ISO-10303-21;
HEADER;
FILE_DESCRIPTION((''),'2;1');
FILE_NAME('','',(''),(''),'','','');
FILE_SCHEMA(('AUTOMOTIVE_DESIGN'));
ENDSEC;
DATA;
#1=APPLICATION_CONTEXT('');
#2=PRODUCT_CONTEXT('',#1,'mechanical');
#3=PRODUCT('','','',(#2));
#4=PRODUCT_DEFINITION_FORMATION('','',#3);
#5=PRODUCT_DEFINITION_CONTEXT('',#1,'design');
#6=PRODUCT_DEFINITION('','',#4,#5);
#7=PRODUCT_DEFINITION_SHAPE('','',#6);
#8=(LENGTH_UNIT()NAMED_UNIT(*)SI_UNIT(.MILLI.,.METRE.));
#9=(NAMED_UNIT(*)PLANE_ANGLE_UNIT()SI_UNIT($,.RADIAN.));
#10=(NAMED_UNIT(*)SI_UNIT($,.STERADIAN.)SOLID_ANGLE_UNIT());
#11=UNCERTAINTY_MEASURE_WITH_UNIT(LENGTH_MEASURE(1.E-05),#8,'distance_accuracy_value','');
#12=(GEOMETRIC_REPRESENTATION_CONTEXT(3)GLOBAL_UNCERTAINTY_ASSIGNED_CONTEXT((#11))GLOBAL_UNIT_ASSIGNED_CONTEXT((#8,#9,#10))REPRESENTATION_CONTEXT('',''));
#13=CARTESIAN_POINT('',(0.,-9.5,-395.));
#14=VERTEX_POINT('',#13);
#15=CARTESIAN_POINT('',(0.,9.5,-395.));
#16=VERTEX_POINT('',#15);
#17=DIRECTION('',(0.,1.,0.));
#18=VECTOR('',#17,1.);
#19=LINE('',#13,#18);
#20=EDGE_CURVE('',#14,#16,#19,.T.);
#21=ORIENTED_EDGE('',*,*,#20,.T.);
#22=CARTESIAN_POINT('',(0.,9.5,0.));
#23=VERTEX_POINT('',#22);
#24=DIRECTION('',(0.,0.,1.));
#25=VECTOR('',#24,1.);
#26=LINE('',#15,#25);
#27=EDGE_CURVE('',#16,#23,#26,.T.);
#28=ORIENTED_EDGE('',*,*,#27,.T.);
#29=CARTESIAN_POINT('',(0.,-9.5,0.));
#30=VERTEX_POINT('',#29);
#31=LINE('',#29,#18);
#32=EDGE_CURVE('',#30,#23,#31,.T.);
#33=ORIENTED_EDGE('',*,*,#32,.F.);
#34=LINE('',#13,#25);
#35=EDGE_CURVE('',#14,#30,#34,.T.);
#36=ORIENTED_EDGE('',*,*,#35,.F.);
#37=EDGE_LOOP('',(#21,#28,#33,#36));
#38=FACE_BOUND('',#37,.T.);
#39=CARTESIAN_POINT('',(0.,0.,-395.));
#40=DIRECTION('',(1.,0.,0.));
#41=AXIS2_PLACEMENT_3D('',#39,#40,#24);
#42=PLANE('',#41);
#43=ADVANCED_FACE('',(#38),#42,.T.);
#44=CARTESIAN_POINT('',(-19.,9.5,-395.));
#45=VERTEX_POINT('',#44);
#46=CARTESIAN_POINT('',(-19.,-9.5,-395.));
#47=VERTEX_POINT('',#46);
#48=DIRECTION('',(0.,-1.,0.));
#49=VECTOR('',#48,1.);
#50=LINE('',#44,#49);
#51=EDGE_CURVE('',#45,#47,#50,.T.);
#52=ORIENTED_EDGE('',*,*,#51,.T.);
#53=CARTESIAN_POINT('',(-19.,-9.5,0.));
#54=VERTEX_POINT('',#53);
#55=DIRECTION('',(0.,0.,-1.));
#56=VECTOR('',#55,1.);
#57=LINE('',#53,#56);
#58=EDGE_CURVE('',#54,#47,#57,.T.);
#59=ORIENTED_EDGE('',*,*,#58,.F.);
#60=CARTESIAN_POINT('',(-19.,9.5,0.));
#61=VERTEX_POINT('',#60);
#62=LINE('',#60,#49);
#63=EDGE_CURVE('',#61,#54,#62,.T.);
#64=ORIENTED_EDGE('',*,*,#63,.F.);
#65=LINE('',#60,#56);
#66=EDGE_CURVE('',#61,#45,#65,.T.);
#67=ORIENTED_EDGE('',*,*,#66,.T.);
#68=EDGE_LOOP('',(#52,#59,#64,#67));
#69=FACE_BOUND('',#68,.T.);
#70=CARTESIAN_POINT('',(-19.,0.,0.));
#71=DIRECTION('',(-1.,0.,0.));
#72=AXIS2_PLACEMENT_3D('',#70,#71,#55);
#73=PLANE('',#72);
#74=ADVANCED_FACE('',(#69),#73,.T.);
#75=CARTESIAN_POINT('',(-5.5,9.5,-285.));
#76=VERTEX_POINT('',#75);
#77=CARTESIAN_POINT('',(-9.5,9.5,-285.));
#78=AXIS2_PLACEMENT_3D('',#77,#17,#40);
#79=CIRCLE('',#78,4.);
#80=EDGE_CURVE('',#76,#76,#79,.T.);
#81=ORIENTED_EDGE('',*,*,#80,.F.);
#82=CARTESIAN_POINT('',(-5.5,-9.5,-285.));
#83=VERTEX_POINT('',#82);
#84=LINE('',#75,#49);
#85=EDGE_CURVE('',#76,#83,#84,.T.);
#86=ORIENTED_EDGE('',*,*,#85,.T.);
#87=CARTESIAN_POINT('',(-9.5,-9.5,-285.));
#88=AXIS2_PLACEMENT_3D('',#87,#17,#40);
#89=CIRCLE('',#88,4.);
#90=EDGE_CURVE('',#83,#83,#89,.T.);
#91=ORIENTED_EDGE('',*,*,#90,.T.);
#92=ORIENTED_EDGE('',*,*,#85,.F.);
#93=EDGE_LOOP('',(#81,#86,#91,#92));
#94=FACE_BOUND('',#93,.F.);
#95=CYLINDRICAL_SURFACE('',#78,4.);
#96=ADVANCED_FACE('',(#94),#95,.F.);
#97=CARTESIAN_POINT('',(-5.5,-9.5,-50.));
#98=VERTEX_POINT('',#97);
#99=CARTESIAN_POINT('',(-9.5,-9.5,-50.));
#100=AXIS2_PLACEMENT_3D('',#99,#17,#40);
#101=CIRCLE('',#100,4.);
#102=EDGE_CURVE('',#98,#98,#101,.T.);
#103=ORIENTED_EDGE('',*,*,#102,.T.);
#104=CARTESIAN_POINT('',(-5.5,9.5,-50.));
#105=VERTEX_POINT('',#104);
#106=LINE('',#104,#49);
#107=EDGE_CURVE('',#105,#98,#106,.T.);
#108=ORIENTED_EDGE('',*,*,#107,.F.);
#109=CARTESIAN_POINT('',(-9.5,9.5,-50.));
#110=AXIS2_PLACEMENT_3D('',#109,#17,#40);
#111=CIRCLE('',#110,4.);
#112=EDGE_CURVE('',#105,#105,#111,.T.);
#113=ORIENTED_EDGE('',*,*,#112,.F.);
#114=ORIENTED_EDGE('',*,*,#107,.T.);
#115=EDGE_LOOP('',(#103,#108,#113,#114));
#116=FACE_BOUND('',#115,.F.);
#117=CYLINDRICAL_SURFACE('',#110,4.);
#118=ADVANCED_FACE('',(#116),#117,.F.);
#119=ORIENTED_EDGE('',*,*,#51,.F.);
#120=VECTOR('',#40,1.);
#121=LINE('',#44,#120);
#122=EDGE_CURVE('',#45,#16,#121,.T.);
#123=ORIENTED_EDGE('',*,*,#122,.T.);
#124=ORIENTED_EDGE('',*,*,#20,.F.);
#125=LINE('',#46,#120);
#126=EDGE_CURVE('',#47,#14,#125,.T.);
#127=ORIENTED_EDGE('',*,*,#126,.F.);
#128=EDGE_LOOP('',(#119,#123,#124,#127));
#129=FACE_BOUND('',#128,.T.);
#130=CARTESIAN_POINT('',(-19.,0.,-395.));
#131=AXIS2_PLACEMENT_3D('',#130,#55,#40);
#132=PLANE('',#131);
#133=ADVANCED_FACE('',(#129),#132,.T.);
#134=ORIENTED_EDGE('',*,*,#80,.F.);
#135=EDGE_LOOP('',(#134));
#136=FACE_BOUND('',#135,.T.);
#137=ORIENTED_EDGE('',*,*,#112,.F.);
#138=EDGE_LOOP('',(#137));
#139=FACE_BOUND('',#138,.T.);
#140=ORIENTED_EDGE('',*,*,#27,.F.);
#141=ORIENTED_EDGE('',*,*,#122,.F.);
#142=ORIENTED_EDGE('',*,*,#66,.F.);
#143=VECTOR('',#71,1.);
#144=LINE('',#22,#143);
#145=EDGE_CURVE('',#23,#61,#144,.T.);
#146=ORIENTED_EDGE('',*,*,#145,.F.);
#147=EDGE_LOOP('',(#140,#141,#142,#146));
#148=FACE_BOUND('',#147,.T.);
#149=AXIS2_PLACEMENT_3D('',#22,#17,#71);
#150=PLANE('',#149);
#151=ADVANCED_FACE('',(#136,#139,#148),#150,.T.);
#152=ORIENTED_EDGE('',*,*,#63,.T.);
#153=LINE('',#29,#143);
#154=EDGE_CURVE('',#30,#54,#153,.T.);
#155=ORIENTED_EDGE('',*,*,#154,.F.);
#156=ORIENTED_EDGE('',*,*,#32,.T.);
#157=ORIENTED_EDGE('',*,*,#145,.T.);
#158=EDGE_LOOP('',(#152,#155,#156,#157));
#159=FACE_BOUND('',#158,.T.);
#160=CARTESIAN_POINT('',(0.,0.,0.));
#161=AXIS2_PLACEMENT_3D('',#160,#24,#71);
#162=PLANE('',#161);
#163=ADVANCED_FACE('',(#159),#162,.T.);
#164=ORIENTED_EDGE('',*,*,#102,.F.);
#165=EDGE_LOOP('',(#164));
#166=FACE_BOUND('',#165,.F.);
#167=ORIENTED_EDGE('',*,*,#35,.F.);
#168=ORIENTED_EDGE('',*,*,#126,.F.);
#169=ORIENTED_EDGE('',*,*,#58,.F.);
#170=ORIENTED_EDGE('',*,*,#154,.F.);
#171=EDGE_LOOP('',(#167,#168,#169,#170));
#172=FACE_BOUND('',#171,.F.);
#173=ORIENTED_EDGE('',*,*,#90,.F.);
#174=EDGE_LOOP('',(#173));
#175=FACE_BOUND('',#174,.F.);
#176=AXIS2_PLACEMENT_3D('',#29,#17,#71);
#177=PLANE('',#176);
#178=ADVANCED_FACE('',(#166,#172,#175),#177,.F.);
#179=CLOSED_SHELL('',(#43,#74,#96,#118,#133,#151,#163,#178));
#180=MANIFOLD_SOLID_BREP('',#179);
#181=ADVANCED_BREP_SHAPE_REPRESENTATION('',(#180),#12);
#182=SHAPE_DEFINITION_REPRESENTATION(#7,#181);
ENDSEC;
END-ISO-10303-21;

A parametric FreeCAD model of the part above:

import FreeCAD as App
import Part
import Sketcher

V = App.Vector
Q = App.Units.Quantity


def add_polygon(sketch, points):
    """Adds a closed chain of lines whose ends are joined by coincident constraints."""
    first, n = sketch.GeometryCount, len(points)
    for a, b in zip(points, points[1:] + points[:1]):
        sketch.addGeometry(Part.LineSegment(App.Vector(*a, 0), App.Vector(*b, 0)), False)
    for i in range(n):
        sketch.addConstraint(Sketcher.Constraint("Coincident", first + i, 2, first + (i + 1) % n, 1))

doc = App.newDocument("Part")
body = doc.addObject("PartDesign::Body", "Body")

sketch1 = body.newObject("Sketcher::SketchObject", "Sketch")
sketch1.AttachmentSupport = (doc.getObject("XZ_Plane"), [""])
sketch1.MapMode = "FlatFace"
add_polygon(sketch1, [(-19, 0), (0, 0), (0, -395), (-19, -395)])
sketch1.addConstraint([
    Sketcher.Constraint("Horizontal", 0),
    Sketcher.Constraint("Vertical", 1),
    Sketcher.Constraint("Horizontal", 2),
    Sketcher.Constraint("Vertical", 3),
    Sketcher.Constraint("Coincident", 0, 2, -1, 1),
    Sketcher.Constraint("DistanceX", 0, 1, 0, 2, Q("19 mm")),
    Sketcher.Constraint("DistanceY", 1, 2, 1, 1, Q("395 mm")),
])
pad1 = body.newObject("PartDesign::Pad", "Pad")
pad1.Profile = sketch1
pad1.Length = 19
pad1.Midplane = True

sketch2 = body.newObject("Sketcher::SketchObject", "Sketch001")
sketch2.AttachmentSupport = (doc.getObject("XZ_Plane"), [""])
sketch2.MapMode = "FlatFace"
sketch2.AttachmentOffset = App.Placement(V(0, 0, -9.5), App.Rotation())
sketch2.addGeometry([
    Part.Circle(V(-9.5, -50, 0), V(0, 0, 1), 4),
    Part.Circle(V(-9.5, -285, 0), V(0, 0, 1), 4),
], False)
sketch2.addConstraint([
    Sketcher.Constraint("Equal", 0, 1),
    Sketcher.Constraint("Vertical", 0, 3, 1, 3),
    Sketcher.Constraint("Diameter", 0, Q("8 mm")),
    Sketcher.Constraint("DistanceY", 0, 3, -1, 1, Q("50 mm")),
    Sketcher.Constraint("DistanceY", 1, 3, 0, 3, Q("235 mm")),
    Sketcher.Constraint("DistanceX", 0, 3, -1, 1, Q("9.5 mm")),
])
pocket1 = body.newObject("PartDesign::Pocket", "Pocket")
pocket1.Profile = sketch2
pocket1.Length = 19
pocket1.Reversed = True

doc.recompute()
